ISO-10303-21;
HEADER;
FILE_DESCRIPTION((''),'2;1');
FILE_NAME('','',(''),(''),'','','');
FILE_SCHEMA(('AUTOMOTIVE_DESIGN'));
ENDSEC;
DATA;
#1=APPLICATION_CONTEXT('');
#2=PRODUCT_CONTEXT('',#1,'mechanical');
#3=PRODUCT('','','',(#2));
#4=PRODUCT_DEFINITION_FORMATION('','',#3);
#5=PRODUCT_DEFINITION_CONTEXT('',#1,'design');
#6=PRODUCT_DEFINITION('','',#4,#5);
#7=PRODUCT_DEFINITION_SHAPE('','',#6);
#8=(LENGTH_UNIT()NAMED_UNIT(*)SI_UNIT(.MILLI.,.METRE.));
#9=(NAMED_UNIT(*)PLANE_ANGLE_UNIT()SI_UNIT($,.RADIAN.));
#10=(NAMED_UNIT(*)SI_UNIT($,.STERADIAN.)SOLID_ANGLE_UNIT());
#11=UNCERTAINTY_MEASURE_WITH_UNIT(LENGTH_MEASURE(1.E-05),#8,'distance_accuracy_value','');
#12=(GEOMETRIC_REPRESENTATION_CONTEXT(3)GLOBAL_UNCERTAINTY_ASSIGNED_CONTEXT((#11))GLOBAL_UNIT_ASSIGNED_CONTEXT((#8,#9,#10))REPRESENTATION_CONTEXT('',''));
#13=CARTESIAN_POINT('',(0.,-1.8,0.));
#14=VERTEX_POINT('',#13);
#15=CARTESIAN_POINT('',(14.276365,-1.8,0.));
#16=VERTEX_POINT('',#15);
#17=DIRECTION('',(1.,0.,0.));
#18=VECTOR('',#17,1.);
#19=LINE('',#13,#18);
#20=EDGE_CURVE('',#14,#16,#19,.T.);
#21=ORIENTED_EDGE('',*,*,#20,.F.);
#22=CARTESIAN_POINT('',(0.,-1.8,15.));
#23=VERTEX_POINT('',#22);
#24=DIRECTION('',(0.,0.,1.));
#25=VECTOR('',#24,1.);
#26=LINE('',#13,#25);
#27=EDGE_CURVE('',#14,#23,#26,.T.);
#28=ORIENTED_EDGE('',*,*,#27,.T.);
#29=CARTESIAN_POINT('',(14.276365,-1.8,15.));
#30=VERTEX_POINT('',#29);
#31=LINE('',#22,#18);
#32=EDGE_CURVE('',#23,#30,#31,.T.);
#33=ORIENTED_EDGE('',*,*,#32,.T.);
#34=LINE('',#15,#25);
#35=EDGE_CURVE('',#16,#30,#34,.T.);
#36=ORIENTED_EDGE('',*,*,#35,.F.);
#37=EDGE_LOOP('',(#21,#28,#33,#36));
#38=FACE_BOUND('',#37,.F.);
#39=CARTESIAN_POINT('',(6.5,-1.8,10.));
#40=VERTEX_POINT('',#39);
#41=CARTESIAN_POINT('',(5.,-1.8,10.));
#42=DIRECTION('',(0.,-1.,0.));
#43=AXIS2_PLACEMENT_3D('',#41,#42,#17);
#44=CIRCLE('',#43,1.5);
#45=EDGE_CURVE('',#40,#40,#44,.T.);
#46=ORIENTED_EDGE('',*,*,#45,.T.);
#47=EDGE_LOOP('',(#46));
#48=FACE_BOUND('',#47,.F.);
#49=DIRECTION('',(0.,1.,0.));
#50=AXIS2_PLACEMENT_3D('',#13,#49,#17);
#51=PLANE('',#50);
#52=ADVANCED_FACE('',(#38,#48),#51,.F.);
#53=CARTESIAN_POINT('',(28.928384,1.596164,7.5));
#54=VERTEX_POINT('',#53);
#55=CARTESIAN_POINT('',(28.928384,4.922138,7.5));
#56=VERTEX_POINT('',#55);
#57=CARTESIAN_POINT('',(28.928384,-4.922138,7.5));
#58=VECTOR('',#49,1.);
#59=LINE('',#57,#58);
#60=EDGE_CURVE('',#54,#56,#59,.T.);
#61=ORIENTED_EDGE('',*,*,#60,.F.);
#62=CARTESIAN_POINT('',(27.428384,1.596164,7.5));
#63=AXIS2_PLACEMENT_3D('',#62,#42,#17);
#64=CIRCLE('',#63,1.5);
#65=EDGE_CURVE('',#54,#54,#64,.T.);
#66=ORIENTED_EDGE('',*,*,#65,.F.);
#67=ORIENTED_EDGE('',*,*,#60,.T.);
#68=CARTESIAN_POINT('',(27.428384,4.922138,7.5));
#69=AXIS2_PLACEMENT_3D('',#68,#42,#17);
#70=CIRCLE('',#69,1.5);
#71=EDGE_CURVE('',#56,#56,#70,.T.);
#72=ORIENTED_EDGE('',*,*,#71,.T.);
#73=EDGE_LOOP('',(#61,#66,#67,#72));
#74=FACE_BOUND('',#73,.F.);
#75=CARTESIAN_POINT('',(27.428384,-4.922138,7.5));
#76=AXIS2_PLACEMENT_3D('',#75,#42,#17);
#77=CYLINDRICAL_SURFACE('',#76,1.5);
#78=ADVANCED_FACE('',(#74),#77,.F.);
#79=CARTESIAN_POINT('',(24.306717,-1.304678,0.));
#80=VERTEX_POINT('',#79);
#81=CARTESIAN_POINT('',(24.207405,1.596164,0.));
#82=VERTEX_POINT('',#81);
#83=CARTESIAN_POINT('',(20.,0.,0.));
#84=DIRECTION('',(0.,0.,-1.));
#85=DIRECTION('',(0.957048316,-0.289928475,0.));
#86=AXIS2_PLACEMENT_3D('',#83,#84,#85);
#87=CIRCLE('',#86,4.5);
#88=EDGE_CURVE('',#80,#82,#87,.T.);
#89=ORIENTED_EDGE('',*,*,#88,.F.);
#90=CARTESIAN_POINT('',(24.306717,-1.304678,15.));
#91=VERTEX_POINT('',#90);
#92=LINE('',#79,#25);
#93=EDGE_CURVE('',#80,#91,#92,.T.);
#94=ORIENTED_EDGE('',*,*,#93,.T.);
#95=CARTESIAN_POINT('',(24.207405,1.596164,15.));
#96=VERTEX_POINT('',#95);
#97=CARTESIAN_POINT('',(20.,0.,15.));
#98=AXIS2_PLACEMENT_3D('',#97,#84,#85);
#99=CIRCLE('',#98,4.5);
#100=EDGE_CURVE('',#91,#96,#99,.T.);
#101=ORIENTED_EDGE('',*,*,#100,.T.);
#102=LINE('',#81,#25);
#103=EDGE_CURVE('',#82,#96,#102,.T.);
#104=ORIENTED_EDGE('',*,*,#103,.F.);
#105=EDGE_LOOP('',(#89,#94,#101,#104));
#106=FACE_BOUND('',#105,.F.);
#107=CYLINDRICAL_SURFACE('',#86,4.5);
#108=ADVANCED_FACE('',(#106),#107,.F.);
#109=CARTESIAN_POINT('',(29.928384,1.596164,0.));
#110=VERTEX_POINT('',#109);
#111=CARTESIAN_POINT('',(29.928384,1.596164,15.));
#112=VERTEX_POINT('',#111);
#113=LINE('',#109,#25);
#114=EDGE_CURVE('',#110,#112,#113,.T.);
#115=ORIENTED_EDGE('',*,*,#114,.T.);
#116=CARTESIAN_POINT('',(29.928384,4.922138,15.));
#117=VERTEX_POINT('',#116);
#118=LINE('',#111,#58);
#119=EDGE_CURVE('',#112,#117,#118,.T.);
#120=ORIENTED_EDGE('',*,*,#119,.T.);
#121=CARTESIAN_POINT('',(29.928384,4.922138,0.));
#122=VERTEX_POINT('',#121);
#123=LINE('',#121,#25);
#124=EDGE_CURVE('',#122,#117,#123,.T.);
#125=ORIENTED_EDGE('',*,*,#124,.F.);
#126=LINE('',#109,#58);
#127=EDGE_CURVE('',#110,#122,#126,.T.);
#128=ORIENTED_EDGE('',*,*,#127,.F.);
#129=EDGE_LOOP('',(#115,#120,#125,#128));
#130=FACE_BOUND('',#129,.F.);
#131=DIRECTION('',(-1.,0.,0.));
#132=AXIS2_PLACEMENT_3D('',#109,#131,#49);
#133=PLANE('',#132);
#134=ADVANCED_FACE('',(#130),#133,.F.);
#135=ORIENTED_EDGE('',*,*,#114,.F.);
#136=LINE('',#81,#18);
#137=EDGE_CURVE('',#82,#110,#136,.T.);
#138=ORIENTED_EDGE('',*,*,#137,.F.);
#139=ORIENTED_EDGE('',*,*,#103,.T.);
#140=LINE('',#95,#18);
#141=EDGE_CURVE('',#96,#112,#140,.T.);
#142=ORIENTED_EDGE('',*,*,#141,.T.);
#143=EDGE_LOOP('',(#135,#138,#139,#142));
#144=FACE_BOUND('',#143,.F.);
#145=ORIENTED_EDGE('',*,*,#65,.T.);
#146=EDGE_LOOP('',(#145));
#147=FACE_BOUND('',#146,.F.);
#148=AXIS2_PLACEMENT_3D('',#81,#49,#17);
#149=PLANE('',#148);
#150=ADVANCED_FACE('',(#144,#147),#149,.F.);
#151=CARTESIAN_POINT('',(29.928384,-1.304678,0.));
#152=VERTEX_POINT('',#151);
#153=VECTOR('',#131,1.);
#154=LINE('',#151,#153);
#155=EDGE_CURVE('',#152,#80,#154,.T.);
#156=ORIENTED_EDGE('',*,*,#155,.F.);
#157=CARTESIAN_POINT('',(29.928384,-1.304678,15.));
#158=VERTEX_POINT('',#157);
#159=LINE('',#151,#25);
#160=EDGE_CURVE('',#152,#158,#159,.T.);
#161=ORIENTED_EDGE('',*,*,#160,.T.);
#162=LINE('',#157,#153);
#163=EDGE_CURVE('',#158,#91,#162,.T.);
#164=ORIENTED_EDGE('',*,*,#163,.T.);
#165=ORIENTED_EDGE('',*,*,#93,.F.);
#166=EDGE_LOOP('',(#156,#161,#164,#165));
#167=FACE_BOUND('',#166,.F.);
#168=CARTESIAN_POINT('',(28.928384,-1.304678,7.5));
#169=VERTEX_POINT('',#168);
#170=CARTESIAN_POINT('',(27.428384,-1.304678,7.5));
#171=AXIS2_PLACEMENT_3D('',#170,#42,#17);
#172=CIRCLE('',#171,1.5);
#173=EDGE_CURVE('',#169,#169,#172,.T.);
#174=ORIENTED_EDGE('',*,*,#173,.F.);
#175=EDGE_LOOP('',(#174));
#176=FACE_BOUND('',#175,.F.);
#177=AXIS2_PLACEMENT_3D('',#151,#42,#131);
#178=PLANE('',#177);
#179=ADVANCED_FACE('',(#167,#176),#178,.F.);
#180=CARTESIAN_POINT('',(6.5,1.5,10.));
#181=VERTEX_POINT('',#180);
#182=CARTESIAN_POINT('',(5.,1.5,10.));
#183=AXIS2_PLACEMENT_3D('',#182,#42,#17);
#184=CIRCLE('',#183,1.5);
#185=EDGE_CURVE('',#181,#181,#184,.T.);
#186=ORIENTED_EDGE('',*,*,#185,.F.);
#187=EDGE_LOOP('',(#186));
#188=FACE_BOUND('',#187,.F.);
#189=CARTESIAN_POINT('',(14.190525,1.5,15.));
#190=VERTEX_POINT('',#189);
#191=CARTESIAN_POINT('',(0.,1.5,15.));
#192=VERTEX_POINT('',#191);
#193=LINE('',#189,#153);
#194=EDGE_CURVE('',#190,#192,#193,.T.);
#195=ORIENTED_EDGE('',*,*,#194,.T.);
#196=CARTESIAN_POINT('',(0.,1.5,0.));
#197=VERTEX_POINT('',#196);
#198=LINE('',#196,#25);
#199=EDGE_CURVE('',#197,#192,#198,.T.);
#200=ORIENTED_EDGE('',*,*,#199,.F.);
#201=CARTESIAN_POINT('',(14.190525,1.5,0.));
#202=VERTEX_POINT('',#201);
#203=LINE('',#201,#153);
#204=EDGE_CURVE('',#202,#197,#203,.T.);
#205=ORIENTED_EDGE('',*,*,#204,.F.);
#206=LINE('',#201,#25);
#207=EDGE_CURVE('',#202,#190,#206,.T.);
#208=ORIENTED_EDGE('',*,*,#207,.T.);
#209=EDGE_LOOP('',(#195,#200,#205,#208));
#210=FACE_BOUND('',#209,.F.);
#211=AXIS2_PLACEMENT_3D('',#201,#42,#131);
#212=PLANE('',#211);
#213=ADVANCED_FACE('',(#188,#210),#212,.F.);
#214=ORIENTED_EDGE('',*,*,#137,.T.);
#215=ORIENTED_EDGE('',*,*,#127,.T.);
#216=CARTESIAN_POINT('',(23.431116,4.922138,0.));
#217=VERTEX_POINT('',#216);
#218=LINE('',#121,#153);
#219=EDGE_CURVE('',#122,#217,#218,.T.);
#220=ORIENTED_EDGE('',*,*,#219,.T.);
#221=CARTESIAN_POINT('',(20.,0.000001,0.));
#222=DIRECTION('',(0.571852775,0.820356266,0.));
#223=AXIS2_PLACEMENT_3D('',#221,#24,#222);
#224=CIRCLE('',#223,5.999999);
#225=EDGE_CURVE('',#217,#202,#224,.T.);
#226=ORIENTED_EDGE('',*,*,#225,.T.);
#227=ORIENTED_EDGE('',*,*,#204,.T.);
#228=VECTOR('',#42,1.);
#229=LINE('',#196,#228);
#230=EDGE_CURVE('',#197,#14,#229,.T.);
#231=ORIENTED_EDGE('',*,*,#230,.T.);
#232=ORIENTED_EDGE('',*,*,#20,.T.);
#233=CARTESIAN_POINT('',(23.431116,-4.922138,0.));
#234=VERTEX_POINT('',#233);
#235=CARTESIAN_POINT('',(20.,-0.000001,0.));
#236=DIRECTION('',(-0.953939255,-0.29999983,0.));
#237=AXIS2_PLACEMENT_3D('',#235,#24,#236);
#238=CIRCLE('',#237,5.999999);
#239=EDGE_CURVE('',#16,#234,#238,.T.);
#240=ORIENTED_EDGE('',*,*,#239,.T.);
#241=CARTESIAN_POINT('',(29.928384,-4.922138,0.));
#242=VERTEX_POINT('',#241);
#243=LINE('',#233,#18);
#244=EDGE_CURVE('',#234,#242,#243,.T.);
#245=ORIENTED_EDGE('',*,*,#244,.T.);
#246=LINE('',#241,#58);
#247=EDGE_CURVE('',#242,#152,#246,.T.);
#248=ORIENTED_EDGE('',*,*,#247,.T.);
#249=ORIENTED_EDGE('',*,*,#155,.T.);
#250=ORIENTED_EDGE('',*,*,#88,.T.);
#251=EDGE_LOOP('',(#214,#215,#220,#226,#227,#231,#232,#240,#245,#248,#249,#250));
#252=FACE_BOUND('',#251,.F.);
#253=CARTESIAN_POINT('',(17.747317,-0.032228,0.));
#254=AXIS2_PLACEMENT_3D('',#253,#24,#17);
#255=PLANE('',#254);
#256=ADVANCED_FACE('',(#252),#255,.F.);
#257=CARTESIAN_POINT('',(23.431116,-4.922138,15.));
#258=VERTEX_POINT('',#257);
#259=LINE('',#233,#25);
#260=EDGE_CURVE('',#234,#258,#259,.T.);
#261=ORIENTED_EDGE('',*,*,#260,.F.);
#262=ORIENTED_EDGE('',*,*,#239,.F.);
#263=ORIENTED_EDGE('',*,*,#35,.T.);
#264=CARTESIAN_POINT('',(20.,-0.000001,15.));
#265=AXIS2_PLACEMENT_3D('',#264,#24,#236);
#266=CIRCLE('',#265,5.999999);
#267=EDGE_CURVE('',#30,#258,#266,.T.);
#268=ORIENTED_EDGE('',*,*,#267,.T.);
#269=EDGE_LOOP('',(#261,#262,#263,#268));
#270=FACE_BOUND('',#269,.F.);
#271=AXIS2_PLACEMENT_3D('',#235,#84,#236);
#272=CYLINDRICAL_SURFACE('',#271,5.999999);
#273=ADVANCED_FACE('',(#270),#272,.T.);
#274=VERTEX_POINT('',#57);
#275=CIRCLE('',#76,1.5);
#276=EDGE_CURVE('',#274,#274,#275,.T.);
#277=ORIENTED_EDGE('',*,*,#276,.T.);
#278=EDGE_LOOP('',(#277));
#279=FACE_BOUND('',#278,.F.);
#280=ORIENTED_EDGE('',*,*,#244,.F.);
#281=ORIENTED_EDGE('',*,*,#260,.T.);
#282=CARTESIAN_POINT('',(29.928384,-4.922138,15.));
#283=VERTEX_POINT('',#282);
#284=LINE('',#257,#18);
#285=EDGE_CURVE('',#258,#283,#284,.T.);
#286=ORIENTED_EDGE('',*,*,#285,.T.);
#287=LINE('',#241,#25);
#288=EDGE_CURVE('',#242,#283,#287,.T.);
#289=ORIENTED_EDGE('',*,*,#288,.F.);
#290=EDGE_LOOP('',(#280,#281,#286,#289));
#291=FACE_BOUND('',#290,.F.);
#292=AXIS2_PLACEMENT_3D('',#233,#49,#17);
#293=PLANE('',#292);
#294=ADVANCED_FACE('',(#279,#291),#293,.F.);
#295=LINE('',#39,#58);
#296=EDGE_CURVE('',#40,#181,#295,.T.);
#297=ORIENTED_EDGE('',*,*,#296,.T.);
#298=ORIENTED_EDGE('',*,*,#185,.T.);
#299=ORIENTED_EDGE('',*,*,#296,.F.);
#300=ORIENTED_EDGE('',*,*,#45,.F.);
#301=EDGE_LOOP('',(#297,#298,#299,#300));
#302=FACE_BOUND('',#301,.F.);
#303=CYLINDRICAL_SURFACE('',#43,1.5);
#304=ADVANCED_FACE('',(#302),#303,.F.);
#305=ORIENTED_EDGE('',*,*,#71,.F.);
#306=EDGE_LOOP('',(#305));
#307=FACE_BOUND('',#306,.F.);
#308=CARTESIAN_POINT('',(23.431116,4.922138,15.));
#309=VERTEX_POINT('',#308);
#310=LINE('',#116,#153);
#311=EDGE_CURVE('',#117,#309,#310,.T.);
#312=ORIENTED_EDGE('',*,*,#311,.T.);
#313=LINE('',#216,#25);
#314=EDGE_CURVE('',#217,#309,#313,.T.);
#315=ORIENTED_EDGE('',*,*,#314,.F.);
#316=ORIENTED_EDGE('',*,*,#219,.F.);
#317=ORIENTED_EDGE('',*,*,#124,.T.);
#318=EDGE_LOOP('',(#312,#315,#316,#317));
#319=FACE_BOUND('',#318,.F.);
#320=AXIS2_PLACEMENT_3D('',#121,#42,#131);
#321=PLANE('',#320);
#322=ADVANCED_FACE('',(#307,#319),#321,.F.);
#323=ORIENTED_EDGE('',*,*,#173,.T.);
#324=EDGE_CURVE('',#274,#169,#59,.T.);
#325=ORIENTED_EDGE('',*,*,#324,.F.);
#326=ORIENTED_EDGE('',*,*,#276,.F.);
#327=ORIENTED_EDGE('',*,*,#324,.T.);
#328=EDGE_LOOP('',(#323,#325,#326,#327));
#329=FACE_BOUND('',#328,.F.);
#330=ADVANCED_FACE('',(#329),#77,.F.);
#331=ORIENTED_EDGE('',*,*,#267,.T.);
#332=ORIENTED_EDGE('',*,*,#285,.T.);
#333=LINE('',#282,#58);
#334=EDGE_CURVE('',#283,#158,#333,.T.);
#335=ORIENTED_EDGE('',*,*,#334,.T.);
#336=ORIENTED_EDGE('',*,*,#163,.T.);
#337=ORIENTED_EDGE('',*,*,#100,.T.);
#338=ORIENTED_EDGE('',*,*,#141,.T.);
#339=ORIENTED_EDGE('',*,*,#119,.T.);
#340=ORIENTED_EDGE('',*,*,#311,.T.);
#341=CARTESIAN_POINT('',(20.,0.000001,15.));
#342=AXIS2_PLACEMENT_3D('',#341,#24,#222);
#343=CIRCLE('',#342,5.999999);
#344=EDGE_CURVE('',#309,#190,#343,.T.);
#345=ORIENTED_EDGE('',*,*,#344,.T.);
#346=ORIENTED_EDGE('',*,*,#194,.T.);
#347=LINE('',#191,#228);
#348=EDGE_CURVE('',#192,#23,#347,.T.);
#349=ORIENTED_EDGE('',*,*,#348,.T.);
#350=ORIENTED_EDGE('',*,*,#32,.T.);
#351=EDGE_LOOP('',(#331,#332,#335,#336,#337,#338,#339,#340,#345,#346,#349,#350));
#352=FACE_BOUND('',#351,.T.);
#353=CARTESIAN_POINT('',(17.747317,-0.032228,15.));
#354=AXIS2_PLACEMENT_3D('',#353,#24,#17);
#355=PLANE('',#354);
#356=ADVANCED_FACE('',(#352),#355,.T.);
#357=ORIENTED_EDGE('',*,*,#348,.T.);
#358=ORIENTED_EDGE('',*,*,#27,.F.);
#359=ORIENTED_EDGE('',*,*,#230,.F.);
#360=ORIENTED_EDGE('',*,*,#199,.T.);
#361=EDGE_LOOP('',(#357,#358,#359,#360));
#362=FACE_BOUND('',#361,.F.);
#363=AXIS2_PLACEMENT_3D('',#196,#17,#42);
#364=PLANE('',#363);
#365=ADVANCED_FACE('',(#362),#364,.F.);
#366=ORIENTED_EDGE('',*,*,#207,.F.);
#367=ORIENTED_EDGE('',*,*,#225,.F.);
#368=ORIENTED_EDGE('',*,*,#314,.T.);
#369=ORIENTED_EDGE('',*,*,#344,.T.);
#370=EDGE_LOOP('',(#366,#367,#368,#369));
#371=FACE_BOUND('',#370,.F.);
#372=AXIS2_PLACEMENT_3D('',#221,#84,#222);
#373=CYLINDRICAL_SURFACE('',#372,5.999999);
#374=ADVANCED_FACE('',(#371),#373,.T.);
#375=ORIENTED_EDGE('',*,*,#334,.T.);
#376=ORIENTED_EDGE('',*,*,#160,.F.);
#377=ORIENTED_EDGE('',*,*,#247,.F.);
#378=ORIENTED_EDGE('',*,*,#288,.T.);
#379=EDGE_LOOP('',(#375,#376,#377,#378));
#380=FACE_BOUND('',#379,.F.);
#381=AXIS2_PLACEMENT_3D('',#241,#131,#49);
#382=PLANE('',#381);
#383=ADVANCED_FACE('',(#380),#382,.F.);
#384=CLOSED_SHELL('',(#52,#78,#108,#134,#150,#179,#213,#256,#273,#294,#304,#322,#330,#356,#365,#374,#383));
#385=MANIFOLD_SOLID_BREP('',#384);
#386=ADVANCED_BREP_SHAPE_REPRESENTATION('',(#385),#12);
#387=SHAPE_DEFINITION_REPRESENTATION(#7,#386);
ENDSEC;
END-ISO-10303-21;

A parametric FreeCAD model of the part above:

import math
import FreeCAD as App
import Part
import Sketcher

V = App.Vector

doc = App.newDocument("Part")
params = doc.addObject("Spreadsheet::Sheet", "Params")
for row, (alias, value) in enumerate([
    ("sketch1_radius", "5.999999 mm"),
    ("sketch1_radius2", "4.5 mm"),
    ("sketch1_height", "3.3 mm"),
    ("pad1_length", "15 mm"),
    ("sketch2_diameter", "3 mm"),
    ("pocket1_length", "25 mm"),
    ("sketch3_diameter", "3 mm"),
    ("pocket2_length", "25 mm"),
], start=1):
    params.set(f"A{row}", alias)
    params.set(f"B{row}", "=" + value)
    params.setAlias(f"B{row}", alias)

body = doc.addObject("PartDesign::Body", "Body")

sketch1 = doc.addObject("Sketcher::SketchObject", "Sketch")
body.addObject(sketch1)
sketch1.AttachmentSupport = (doc.XY_Plane, [""])
sketch1.MapMode = "FlatFace"
sketch1.addGeometry([
    Part.ArcOfCircle(Part.Circle(V(20, 0, 0), V(0, 0, 1), 4.5), math.radians(20.77525), math.radians(343.146326)),
    Part.LineSegment(V(24.207405, 1.596164, 0), V(29.928384, 1.596164, 0)),
    Part.LineSegment(V(29.928384, 1.596164, 0), V(29.928384, 4.922138, 0)),
    Part.LineSegment(V(29.928384, 4.922138, 0), V(23.431116, 4.922138, 0)),
    Part.ArcOfCircle(Part.Circle(V(20, 0.000001, 0), V(0, 0, 1), 5.999999), math.radians(55.120473), math.radians(165.522495)),
    Part.LineSegment(V(14.190525, 1.5, 0), V(0, 1.5, 0)),
    Part.LineSegment(V(0, 1.5, 0), V(0, -1.8, 0)),
    Part.LineSegment(V(0, -1.8, 0), V(14.276365, -1.8, 0)),
    Part.ArcOfCircle(Part.Circle(V(20, -0.000001, 0), V(0, 0, 1), 5.999999), math.radians(-162.542407), math.radians(-55.120471)),
    Part.LineSegment(V(23.431116, -4.922138, 0), V(29.928384, -4.922138, 0)),
    Part.LineSegment(V(29.928384, -4.922138, 0), V(29.928384, -1.304678, 0)),
    Part.LineSegment(V(29.928384, -1.304678, 0), V(24.306717, -1.304678, 0)),
], False)
sketch1.addConstraint([
    Sketcher.Constraint("Coincident", 0, 1, 1, 1),
    Sketcher.Constraint("Coincident", 1, 2, 2, 1),
    Sketcher.Constraint("Coincident", 2, 2, 3, 1),
    Sketcher.Constraint("Coincident", 3, 2, 4, 1),
    Sketcher.Constraint("Coincident", 4, 2, 5, 1),
    Sketcher.Constraint("Coincident", 5, 2, 6, 1),
    Sketcher.Constraint("Coincident", 6, 2, 7, 1),
    Sketcher.Constraint("Coincident", 7, 2, 8, 1),
    Sketcher.Constraint("Coincident", 8, 2, 9, 1),
    Sketcher.Constraint("Coincident", 9, 2, 10, 1),
    Sketcher.Constraint("Coincident", 10, 2, 11, 1),
    Sketcher.Constraint("Coincident", 11, 2, 0, 2),
    Sketcher.Constraint("Horizontal", 1),
    Sketcher.Constraint("Vertical", 2),
    Sketcher.Constraint("Horizontal", 3),
    Sketcher.Constraint("Horizontal", 5),
    Sketcher.Constraint("Vertical", 6),
    Sketcher.Constraint("Horizontal", 7),
    Sketcher.Constraint("Horizontal", 9),
    Sketcher.Constraint("Vertical", 10),
    Sketcher.Constraint("Horizontal", 11),
    Sketcher.Constraint("Coincident", 4, 3, 0, 3),
    Sketcher.Constraint("Coincident", 8, 3, 0, 3),
    Sketcher.Constraint("Equal", 4, 8),
    Sketcher.Constraint("Symmetric", 3, 2, 8, 2, -1),
    Sketcher.Constraint("PointOnObject", 5, 2, -2),
    Sketcher.Constraint("Vertical", 2, 2, 9, 2),
    Sketcher.Constraint("Radius", 4, 5.999999),
    Sketcher.Constraint("Radius", 0, 4.5),
    Sketcher.Constraint("DistanceY", 6, 2, 6, 1, 3.3),
    Sketcher.Constraint("DistanceX", -1, 1, 0, 3, 20.0),
    Sketcher.Constraint("DistanceY", -1, 1, 4, 2, 1.5),
    Sketcher.Constraint("DistanceX", 1, 1, 1, 2, 5.720979),
    Sketcher.Constraint("DistanceX", 3, 2, 3, 1, 6.497268),
    Sketcher.Constraint("DistanceY", 10, 1, 10, 2, 3.61746),
    Sketcher.Constraint("DistanceX", 8, 2, 11, 2, 0.875601),
])
sketch1.setExpression("Constraints[27]", "Params.sketch1_radius")
sketch1.setExpression("Constraints[28]", "Params.sketch1_radius2")
sketch1.setExpression("Constraints[29]", "Params.sketch1_height")
pad1 = doc.addObject("PartDesign::Pad", "Pad")
body.addObject(pad1)
pad1.Profile = sketch1
pad1.setExpression("Length", "Params.pad1_length")

sketch2 = doc.addObject("Sketcher::SketchObject", "Sketch001")
body.addObject(sketch2)
sketch2.AttachmentSupport = (doc.XZ_Plane, [""])
sketch2.MapMode = "FlatFace"
sketch2.AttachmentOffset = App.Placement(V(0, 0, 1.8), App.Rotation())
sketch2.addGeometry(Part.Circle(V(5, 10, 0), V(0, 0, 1), 1.5), False)
sketch2.addConstraint([
    Sketcher.Constraint("Diameter", 0, 3.0),
    Sketcher.Constraint("DistanceX", -1, 1, 0, 3, 5.0),
    Sketcher.Constraint("DistanceY", -1, 1, 0, 3, 10.0),
])
sketch2.setExpression("Constraints[0]", "Params.sketch2_diameter")
pocket1 = doc.addObject("PartDesign::Pocket", "Pocket")
body.addObject(pocket1)
pocket1.Profile = sketch2
pocket1.setExpression("Length", "Params.pocket1_length")

sketch3 = doc.addObject("Sketcher::SketchObject", "Sketch002")
body.addObject(sketch3)
sketch3.AttachmentSupport = (doc.XZ_Plane, [""])
sketch3.MapMode = "FlatFace"
sketch3.AttachmentOffset = App.Placement(V(0, 0, 4.922138), App.Rotation())
sketch3.addGeometry(Part.Circle(V(27.428384, 7.5, 0), V(0, 0, 1), 1.5), False)
sketch3.addConstraint([
    Sketcher.Constraint("Diameter", 0, 3.0),
    Sketcher.Constraint("DistanceY", -1, 1, 0, 3, 7.5),
    Sketcher.Constraint("DistanceX", -1, 1, 0, 3, 27.428384),
])
sketch3.setExpression("Constraints[0]", "Params.sketch3_diameter")
pocket2 = doc.addObject("PartDesign::Pocket", "Pocket001")
body.addObject(pocket2)
pocket2.Profile = sketch3
pocket2.setExpression("Length", "Params.pocket2_length")

doc.recompute()
